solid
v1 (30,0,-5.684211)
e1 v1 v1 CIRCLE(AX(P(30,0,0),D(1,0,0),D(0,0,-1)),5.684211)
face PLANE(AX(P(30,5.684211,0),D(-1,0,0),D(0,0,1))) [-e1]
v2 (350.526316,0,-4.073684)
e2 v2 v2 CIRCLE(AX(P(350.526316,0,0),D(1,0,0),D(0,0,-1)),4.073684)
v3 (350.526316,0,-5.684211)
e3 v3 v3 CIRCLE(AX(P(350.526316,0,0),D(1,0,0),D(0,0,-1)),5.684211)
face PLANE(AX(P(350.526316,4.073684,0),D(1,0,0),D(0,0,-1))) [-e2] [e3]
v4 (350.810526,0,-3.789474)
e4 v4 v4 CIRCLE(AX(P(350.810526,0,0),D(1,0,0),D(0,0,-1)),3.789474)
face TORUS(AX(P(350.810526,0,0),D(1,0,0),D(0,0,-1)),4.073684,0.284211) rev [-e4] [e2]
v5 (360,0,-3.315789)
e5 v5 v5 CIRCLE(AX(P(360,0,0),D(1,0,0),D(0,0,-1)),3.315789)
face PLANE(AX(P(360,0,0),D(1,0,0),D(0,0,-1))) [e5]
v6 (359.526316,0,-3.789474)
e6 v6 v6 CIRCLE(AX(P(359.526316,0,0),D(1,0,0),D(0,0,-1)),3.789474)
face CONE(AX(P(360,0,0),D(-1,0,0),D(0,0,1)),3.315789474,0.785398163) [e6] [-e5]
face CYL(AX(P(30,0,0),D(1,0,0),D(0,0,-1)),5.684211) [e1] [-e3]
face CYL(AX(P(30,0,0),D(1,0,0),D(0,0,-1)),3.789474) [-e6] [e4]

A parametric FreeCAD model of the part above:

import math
import FreeCAD as App
import Part
import Sketcher
Q = App.Units.Quantity

doc = App.newDocument("Part")
body = doc.addObject("PartDesign::Body", "Body")

# Sketch on XY plane
sketch1 = doc.addObject("Sketcher::SketchObject", "Sketch")
body.addObject(sketch1)
sketch1.AttachmentSupport = (doc.XY_Plane, [""])
sketch1.MapMode = "FlatFace"
sketch1.addGeometry([
    Part.LineSegment(App.Vector(30, 5.68, 0), App.Vector(30, 0, 0)),  # 0
    Part.LineSegment(App.Vector(30, 0, 0), App.Vector(360, 0, 0)),  # 1
    Part.LineSegment(App.Vector(360, 0, 0), App.Vector(360, 3.32, 0)),  # 2
    Part.LineSegment(App.Vector(360, 3.32, 0), App.Vector(359.53, 3.79, 0)),  # 3
    Part.LineSegment(App.Vector(359.53, 3.79, 0), App.Vector(350.81, 3.79, 0)),  # 4
    Part.ArcOfCircle(Part.Circle(App.Vector(350.81, 4.07, 0), App.Vector(0, 0, 1), 0.28), math.radians(180), math.radians(270)),  # 5
    Part.LineSegment(App.Vector(350.53, 4.07, 0), App.Vector(350.53, 5.68, 0)),  # 6
    Part.LineSegment(App.Vector(350.53, 5.68, 0), App.Vector(30, 5.68, 0)),  # 7
], False)
sketch1.addConstraint([
    Sketcher.Constraint("Coincident", 0, 2, 1, 1),
    Sketcher.Constraint("Coincident", 1, 2, 2, 1),
    Sketcher.Constraint("Coincident", 2, 2, 3, 1),
    Sketcher.Constraint("Coincident", 3, 2, 4, 1),
    Sketcher.Constraint("Tangent", 4, 2, 5, 2),
    Sketcher.Constraint("Tangent", 5, 1, 6, 1),
    Sketcher.Constraint("Coincident", 6, 2, 7, 1),
    Sketcher.Constraint("Coincident", 7, 2, 0, 1),
    Sketcher.Constraint("Vertical", 0),
    Sketcher.Constraint("Horizontal", 1),
    Sketcher.Constraint("Vertical", 2),
    Sketcher.Constraint("Horizontal", 4),
    Sketcher.Constraint("Vertical", 6),
    Sketcher.Constraint("Horizontal", 7),
    Sketcher.Constraint("PointOnObject", 0, 2, -1),
    Sketcher.Constraint("DistanceX", 1, 1, 1, 2, Q("330 mm")),
    Sketcher.Constraint("Angle", 3, Q("135 deg")),
    Sketcher.Constraint("DistanceX", -1, 1, 0, 2, Q("30 mm")),
    Sketcher.Constraint("DistanceX", 5, 1, 3, 2, Q("9 mm")),
    Sketcher.Constraint("Radius", 5, Q("0.284211 mm")),
    Sketcher.Constraint("DistanceY", 0, 2, 0, 1, Q("5.684211 mm")),
    Sketcher.Constraint("DistanceY", 2, 1, 2, 2, Q("3.315789 mm")),
    Sketcher.Constraint("Distance", 3, Q("0.669891 mm")),
])
revolution = doc.addObject("PartDesign::Revolution", "Revolution")
body.addObject(revolution)
revolution.Profile = sketch1
revolution.ReferenceAxis = (sketch1, ["H_Axis"])
revolution.Angle = 360

doc.recompute()
